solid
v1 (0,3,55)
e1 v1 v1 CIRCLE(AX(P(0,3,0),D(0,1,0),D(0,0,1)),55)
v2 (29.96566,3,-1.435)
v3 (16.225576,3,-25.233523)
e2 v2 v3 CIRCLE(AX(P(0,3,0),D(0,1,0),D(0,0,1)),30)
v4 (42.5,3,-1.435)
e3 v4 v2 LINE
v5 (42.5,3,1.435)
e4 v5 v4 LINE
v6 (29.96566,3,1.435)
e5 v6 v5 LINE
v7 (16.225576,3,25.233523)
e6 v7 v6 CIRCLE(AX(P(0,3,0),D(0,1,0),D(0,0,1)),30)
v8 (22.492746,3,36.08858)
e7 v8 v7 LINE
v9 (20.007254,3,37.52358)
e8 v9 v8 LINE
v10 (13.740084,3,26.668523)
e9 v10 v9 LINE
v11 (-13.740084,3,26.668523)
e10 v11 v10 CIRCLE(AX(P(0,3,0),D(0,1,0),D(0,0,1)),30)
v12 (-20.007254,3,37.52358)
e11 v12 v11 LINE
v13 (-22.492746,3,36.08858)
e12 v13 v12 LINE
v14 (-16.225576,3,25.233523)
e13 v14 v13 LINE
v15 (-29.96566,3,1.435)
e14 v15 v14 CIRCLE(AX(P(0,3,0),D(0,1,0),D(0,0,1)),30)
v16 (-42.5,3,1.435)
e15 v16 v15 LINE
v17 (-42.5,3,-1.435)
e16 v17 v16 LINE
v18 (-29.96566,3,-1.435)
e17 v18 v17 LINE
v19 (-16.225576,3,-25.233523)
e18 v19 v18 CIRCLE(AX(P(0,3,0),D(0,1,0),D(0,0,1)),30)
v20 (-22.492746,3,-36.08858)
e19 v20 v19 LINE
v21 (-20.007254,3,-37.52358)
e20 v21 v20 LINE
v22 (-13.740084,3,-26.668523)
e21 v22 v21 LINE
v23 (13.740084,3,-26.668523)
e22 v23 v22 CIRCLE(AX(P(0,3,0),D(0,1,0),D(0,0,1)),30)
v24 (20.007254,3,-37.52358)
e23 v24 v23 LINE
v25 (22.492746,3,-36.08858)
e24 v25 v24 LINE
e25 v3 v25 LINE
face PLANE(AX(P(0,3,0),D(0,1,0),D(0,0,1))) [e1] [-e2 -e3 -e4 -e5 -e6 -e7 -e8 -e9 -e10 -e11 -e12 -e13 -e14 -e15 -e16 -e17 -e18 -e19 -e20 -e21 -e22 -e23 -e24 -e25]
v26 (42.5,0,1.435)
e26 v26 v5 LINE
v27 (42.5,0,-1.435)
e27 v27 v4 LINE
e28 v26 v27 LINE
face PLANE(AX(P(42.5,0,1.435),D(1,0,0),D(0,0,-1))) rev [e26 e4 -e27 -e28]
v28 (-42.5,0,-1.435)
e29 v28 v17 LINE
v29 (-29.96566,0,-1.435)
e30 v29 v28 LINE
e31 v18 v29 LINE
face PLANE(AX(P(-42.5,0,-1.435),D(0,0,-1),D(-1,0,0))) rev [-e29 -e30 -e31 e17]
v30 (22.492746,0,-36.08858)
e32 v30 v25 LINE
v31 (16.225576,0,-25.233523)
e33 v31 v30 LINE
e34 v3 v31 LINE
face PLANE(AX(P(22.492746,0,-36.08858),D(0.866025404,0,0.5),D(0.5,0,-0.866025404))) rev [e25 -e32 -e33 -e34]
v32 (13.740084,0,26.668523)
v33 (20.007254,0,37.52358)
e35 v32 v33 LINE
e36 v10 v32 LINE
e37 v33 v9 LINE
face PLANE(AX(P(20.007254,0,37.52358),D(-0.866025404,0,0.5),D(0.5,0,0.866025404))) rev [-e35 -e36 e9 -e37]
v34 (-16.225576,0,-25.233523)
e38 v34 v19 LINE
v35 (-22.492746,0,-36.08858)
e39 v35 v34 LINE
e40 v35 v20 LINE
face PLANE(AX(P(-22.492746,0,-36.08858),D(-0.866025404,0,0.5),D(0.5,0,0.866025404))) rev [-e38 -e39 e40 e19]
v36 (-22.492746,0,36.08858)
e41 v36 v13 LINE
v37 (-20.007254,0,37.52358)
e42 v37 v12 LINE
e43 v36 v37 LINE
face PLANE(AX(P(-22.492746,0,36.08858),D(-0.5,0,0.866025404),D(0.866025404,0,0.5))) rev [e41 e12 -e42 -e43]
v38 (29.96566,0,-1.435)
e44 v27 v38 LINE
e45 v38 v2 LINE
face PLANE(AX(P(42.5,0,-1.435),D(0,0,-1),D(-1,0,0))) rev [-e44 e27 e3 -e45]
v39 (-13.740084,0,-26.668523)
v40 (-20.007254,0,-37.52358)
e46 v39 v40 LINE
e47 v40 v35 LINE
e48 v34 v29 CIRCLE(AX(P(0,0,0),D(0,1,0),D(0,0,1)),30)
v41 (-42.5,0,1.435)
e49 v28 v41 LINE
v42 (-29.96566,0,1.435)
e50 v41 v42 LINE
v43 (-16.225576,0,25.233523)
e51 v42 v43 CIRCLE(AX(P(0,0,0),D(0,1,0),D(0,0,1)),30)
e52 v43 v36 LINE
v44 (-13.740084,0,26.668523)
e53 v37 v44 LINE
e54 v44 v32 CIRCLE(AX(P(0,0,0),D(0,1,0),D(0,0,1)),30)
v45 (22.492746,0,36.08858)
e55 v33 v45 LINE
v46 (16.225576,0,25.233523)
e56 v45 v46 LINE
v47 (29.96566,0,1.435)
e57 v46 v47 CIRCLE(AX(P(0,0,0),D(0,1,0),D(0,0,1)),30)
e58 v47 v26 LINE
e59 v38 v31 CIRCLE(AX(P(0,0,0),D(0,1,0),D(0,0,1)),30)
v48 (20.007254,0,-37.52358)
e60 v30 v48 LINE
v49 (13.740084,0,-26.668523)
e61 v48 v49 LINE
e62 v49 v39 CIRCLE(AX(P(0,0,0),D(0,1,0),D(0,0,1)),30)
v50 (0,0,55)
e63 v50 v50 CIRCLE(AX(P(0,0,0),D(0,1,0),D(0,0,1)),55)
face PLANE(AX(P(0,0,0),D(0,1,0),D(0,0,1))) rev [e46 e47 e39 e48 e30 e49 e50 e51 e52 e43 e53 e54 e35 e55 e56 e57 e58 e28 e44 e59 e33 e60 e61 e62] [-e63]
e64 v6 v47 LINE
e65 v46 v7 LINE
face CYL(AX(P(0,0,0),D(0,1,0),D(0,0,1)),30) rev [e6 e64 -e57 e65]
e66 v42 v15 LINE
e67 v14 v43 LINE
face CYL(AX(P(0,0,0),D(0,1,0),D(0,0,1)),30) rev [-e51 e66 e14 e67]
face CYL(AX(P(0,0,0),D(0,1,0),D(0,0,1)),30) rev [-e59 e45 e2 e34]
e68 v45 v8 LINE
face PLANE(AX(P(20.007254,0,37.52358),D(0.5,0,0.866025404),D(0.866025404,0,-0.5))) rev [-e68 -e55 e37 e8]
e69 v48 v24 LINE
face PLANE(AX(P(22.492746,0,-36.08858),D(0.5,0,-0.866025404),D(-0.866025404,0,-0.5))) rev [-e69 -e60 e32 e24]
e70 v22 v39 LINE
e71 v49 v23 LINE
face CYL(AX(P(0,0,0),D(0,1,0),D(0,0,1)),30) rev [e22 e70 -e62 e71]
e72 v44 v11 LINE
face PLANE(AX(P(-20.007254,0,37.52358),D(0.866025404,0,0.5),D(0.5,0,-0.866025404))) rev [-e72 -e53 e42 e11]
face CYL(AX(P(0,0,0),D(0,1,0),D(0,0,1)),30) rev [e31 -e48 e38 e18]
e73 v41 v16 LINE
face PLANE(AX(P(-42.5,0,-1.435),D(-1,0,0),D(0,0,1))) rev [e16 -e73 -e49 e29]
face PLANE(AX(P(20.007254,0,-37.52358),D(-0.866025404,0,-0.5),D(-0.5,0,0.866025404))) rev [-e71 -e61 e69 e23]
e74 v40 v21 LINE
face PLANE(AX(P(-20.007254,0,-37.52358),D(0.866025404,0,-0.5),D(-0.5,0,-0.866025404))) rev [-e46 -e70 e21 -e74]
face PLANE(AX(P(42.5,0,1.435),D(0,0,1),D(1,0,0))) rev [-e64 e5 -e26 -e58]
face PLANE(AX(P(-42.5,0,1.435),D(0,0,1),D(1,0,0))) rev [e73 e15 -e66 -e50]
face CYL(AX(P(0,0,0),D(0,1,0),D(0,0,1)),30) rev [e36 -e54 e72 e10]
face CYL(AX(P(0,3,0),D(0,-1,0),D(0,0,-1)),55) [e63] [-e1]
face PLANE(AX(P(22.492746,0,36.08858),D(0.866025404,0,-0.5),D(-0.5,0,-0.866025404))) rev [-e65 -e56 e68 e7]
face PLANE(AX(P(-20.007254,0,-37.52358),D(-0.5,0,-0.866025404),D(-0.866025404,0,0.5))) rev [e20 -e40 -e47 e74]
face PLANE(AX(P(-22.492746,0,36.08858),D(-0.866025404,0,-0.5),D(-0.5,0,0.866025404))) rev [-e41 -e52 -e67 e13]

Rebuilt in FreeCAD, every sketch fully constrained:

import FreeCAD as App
import Part
import Sketcher

V = App.Vector


def add_polygon(sketch, points):
    """Adds a closed chain of lines whose ends are joined by coincident constraints."""
    first, n = sketch.GeometryCount, len(points)
    for a, b in zip(points, points[1:] + points[:1]):
        sketch.addGeometry(Part.LineSegment(App.Vector(*a, 0), App.Vector(*b, 0)), False)
    for i in range(n):
        sketch.addConstraint(Sketcher.Constraint("Coincident", first + i, 2, first + (i + 1) % n, 1))

doc = App.newDocument("Part")
body = doc.addObject("PartDesign::Body", "Body")

# Sketch on XZ plane
sketch1 = body.newObject("Sketcher::SketchObject", "Sketch")
sketch1.AttachmentSupport = (doc.getObject("XZ_Plane"), [""])
sketch1.MapMode = "FlatFace"
sketch1.addGeometry(Part.Circle(V(0, 0, 0), V(0, 0, 1), 55), False)
sketch1.addConstraint([
    Sketcher.Constraint("Coincident", 0, 3, -1, 1),
    Sketcher.Constraint("Diameter", 0, 110.0),
])
pad1 = body.newObject("PartDesign::Pad", "Pad")
pad1.Profile = sketch1
pad1.Length = 3
pad1.Reversed = True

# Sketch on XZ plane
sketch2 = body.newObject("Sketcher::SketchObject", "Sketch001")
sketch2.AttachmentSupport = (doc.getObject("XZ_Plane"), [""])
sketch2.MapMode = "FlatFace"
sketch2.AttachmentOffset = App.Placement(V(0, 0, -3), App.Rotation())
sketch2.addGeometry(Part.Circle(V(0, 0, 0), V(0, 0, 1), 30), False)
sketch2.addConstraint([
    Sketcher.Constraint("Coincident", 0, 3, -1, 1),
    Sketcher.Constraint("Diameter", 0, 60.0),
])
pocket1 = body.newObject("PartDesign::Pocket", "Pocket")
pocket1.Profile = sketch2
pocket1.Length = 3
pocket1.Reversed = True

# Sketch on XZ plane
sketch3 = body.newObject("Sketcher::SketchObject", "Sketch002")
sketch3.AttachmentSupport = (doc.getObject("XZ_Plane"), [""])
sketch3.MapMode = "FlatFace"
sketch3.AttachmentOffset = App.Placement(V(0, 0, -3), App.Rotation())
add_polygon(sketch3, [(-42.5, -1.4), (-42.5, 1.4), (-17.5, 1.4), (-17.5, -1.4)])  # lines 0-3
sketch3.addConstraint([
    Sketcher.Constraint("Vertical", 0),
    Sketcher.Constraint("Horizontal", 1),
    Sketcher.Constraint("Vertical", 2),
    Sketcher.Constraint("Horizontal", 3),
    Sketcher.Constraint("DistanceX", 1, 1, 1, 2, 25.0),
    Sketcher.Constraint("DistanceY", 0, 1, 0, 2, 2.87),
    Sketcher.Constraint("DistanceX", 0, 2, -1, 1, 42.5),
    Sketcher.Constraint("DistanceY", -1, 1, 0, 2, 1.435),
])
pocket2 = body.newObject("PartDesign::Pocket", "Pocket001")
pocket2.Profile = sketch3
pocket2.Length = 3
pocket2.Reversed = True
doc.recompute()

polarpattern = body.newObject("PartDesign::PolarPattern", "PolarPattern")
polarpattern.Originals = [pocket2]
polarpattern.Axis = (doc.getObject("Y_Axis"), [""])
polarpattern.Angle = 360
polarpattern.Occurrences = 6
body.Tip = polarpattern

doc.recompute()
